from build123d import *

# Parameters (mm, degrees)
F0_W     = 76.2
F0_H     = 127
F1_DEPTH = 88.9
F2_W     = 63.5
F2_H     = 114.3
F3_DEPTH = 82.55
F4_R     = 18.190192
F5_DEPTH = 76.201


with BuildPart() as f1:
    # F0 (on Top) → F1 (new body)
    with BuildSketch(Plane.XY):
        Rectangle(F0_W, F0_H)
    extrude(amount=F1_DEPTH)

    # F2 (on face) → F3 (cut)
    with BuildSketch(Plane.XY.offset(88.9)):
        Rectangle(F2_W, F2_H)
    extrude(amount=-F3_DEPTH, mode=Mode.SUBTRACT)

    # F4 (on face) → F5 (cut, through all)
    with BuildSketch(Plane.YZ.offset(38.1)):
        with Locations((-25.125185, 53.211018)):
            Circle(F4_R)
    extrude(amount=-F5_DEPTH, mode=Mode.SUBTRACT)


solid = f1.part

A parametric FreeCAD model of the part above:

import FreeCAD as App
import Part
import Sketcher
from FreeCAD import Vector
Q = App.Units.Quantity

doc = App.newDocument("Part")
body = doc.addObject("PartDesign::Body", "Body")

# Sketch on XY plane
sketch1 = body.newObject("Sketcher::SketchObject", "Sketch")
sketch1.AttachmentSupport = (doc.getObject("XY_Plane"), [""])
sketch1.MapMode = "FlatFace"
sketch1.addGeometry(Part.LineSegment(Vector(-38.1, 63.5, 0), Vector(-38.1, -63.5, 0)), False)
sketch1.addGeometry(Part.LineSegment(Vector(-38.1, -63.5, 0), Vector(38.1, -63.5, 0)), False)
sketch1.addGeometry(Part.LineSegment(Vector(38.1, -63.5, 0), Vector(38.1, 63.5, 0)), False)
sketch1.addGeometry(Part.LineSegment(Vector(38.1, 63.5, 0), Vector(-38.1, 63.5, 0)), False)
sketch1.addConstraint(Sketcher.Constraint("Coincident", 0, 2, 1, 1))
sketch1.addConstraint(Sketcher.Constraint("Coincident", 1, 2, 2, 1))
sketch1.addConstraint(Sketcher.Constraint("Coincident", 2, 2, 3, 1))
sketch1.addConstraint(Sketcher.Constraint("Coincident", 3, 2, 0, 1))
sketch1.addConstraint(Sketcher.Constraint("Vertical", 0))
sketch1.addConstraint(Sketcher.Constraint("Horizontal", 1))
sketch1.addConstraint(Sketcher.Constraint("Vertical", 2))
sketch1.addConstraint(Sketcher.Constraint("Horizontal", 3))
sketch1.addConstraint(Sketcher.Constraint("Symmetric", 0, 2, 2, 2, -1, 1))
sketch1.addConstraint(Sketcher.Constraint("DistanceX", 1, 1, 1, 2, Q("3 in")))
sketch1.addConstraint(Sketcher.Constraint("DistanceY", 0, 2, 0, 1, Q("5 in")))
pad1 = body.newObject("PartDesign::Pad", "Pad")
pad1.Profile = sketch1
pad1.Length = Q("3.5 in")

# Sketch on XY plane
sketch2 = body.newObject("Sketcher::SketchObject", "Sketch001")
sketch2.AttachmentSupport = (doc.getObject("XY_Plane"), [""])
sketch2.MapMode = "FlatFace"
sketch2.AttachmentOffset = App.Placement(Vector(0, 0, 3.5 * 25.4), App.Rotation())
sketch2.addGeometry(Part.LineSegment(Vector(-31.75, 57.15, 0), Vector(-31.75, -57.15, 0)), False)
sketch2.addGeometry(Part.LineSegment(Vector(-31.75, -57.15, 0), Vector(31.75, -57.15, 0)), False)
sketch2.addGeometry(Part.LineSegment(Vector(31.75, -57.15, 0), Vector(31.75, 57.15, 0)), False)
sketch2.addGeometry(Part.LineSegment(Vector(31.75, 57.15, 0), Vector(-31.75, 57.15, 0)), False)
sketch2.addConstraint(Sketcher.Constraint("Coincident", 0, 2, 1, 1))
sketch2.addConstraint(Sketcher.Constraint("Coincident", 1, 2, 2, 1))
sketch2.addConstraint(Sketcher.Constraint("Coincident", 2, 2, 3, 1))
sketch2.addConstraint(Sketcher.Constraint("Coincident", 3, 2, 0, 1))
sketch2.addConstraint(Sketcher.Constraint("Vertical", 0))
sketch2.addConstraint(Sketcher.Constraint("Horizontal", 1))
sketch2.addConstraint(Sketcher.Constraint("Vertical", 2))
sketch2.addConstraint(Sketcher.Constraint("Horizontal", 3))
sketch2.addConstraint(Sketcher.Constraint("Symmetric", 0, 2, 2, 2, -1, 1))
sketch2.addConstraint(Sketcher.Constraint("DistanceX", 1, 1, 1, 2, Q("2.5 in")))
sketch2.addConstraint(Sketcher.Constraint("DistanceY", 0, 2, 0, 1, Q("4.5 in")))
pocket1 = body.newObject("PartDesign::Pocket", "Pocket")
pocket1.Profile = sketch2
pocket1.Length = Q("3.25 in")

# Sketch on YZ plane
sketch3 = body.newObject("Sketcher::SketchObject", "Sketch002")
sketch3.AttachmentSupport = (doc.getObject("YZ_Plane"), [""])
sketch3.MapMode = "FlatFace"
sketch3.AttachmentOffset = App.Placement(Vector(0, 0, 1.5 * 25.4), App.Rotation())
sketch3.addGeometry(Part.Circle(Vector(-25.125185, 53.211018, 0), Vector(0, 0, 1), 18.190192), False)
sketch3.addConstraint(Sketcher.Constraint("Diameter", 0, Q("36.380384 mm")))
sketch3.addConstraint(Sketcher.Constraint("DistanceY", -1, 1, 0, 3, Q("53.211018 mm")))
sketch3.addConstraint(Sketcher.Constraint("DistanceX", 0, 3, -1, 1, Q("25.125185 mm")))
pocket2 = body.newObject("PartDesign::Pocket", "Pocket001")
pocket2.Profile = sketch3
pocket2.Type = "ThroughAll"

doc.recompute()
